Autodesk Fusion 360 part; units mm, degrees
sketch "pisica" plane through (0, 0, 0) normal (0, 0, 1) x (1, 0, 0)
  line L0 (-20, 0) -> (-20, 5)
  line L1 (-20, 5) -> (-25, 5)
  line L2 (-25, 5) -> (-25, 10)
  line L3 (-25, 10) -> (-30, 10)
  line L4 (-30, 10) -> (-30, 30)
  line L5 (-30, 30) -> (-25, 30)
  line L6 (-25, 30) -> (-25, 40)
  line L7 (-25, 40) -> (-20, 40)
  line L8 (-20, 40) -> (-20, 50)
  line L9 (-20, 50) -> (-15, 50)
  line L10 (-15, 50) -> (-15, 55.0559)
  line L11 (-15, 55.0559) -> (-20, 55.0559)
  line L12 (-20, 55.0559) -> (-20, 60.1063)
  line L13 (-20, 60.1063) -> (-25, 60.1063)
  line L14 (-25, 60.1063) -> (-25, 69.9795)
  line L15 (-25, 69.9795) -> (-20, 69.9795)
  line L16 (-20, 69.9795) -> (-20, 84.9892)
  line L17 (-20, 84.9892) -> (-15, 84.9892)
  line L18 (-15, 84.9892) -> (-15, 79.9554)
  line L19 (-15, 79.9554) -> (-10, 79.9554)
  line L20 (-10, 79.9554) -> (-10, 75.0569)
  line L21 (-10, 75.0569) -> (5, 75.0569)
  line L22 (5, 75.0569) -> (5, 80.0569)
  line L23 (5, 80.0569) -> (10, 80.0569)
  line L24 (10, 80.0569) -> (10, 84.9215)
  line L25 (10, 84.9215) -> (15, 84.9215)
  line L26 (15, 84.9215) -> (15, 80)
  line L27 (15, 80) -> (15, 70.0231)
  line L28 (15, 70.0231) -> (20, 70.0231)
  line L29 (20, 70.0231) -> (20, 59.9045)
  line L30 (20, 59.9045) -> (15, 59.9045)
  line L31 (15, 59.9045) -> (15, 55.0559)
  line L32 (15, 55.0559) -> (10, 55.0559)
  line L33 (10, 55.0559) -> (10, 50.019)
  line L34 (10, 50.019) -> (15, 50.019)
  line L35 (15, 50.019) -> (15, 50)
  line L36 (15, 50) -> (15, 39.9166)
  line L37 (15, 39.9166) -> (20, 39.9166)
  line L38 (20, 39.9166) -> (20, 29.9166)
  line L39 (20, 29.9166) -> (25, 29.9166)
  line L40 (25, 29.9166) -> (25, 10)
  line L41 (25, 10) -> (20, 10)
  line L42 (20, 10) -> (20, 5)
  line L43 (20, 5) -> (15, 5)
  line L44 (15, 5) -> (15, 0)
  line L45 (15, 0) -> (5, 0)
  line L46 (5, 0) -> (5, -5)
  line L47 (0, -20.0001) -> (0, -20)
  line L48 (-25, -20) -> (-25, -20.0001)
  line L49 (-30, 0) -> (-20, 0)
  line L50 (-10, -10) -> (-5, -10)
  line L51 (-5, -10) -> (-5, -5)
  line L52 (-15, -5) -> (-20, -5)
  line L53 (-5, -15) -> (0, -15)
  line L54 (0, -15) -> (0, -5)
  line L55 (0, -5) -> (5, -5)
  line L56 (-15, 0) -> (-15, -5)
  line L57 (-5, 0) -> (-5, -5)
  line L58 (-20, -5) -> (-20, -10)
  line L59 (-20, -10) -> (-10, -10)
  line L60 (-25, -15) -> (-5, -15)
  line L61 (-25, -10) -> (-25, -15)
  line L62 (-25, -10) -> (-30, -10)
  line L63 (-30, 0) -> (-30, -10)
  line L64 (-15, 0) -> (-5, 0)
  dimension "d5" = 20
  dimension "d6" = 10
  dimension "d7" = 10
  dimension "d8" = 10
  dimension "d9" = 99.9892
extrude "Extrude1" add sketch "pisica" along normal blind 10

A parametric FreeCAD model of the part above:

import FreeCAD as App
import Part
import Sketcher
from FreeCAD import Vector
Q = App.Units.Quantity

doc = App.newDocument("Part")
body = doc.addObject("PartDesign::Body", "Body")

# Sketch on XY plane
sketch1 = body.newObject("Sketcher::SketchObject", "Sketch")
sketch1.AttachmentSupport = (doc.getObject("XY_Plane"), [""])
sketch1.MapMode = "FlatFace"
sketch1.addGeometry(Part.LineSegment(Vector(-20, 5, 0), Vector(-20, 0, 0)), False)
sketch1.addGeometry(Part.LineSegment(Vector(-20, 0, 0), Vector(-30, 0, 0)), False)
sketch1.addGeometry(Part.LineSegment(Vector(-30, 0, 0), Vector(-30, -10, 0)), False)
sketch1.addGeometry(Part.LineSegment(Vector(-30, -10, 0), Vector(-25, -10, 0)), False)
sketch1.addGeometry(Part.LineSegment(Vector(-25, -10, 0), Vector(-25, -15, 0)), False)
sketch1.addGeometry(Part.LineSegment(Vector(-25, -15, 0), Vector(0, -15, 0)), False)
sketch1.addGeometry(Part.LineSegment(Vector(0, -15, 0), Vector(0, -5, 0)), False)
sketch1.addGeometry(Part.LineSegment(Vector(0, -5, 0), Vector(5, -5, 0)), False)
sketch1.addGeometry(Part.LineSegment(Vector(5, -5, 0), Vector(5, 0, 0)), False)
sketch1.addGeometry(Part.LineSegment(Vector(5, 0, 0), Vector(15, 0, 0)), False)
sketch1.addGeometry(Part.LineSegment(Vector(15, 0, 0), Vector(15, 5, 0)), False)
sketch1.addGeometry(Part.LineSegment(Vector(15, 5, 0), Vector(20, 5, 0)), False)
sketch1.addGeometry(Part.LineSegment(Vector(20, 5, 0), Vector(20, 10, 0)), False)
sketch1.addGeometry(Part.LineSegment(Vector(20, 10, 0), Vector(25, 10, 0)), False)
sketch1.addGeometry(Part.LineSegment(Vector(25, 10, 0), Vector(25, 29.9, 0)), False)
sketch1.addGeometry(Part.LineSegment(Vector(25, 29.9, 0), Vector(20, 29.9, 0)), False)
sketch1.addGeometry(Part.LineSegment(Vector(20, 29.9, 0), Vector(20, 39.9, 0)), False)
sketch1.addGeometry(Part.LineSegment(Vector(20, 39.9, 0), Vector(15, 39.9, 0)), False)
sketch1.addGeometry(Part.LineSegment(Vector(15, 39.9, 0), Vector(15, 50, 0)), False)
sketch1.addGeometry(Part.LineSegment(Vector(15, 50, 0), Vector(10, 50, 0)), False)
sketch1.addGeometry(Part.LineSegment(Vector(10, 50, 0), Vector(10, 55.1, 0)), False)
sketch1.addGeometry(Part.LineSegment(Vector(10, 55.1, 0), Vector(15, 55.1, 0)), False)
sketch1.addGeometry(Part.LineSegment(Vector(15, 55.1, 0), Vector(15, 59.9, 0)), False)
sketch1.addGeometry(Part.LineSegment(Vector(15, 59.9, 0), Vector(20, 59.9, 0)), False)
sketch1.addGeometry(Part.LineSegment(Vector(20, 59.9, 0), Vector(20, 70, 0)), False)
sketch1.addGeometry(Part.LineSegment(Vector(20, 70, 0), Vector(15, 70, 0)), False)
sketch1.addGeometry(Part.LineSegment(Vector(15, 70, 0), Vector(15, 84.9, 0)), False)
sketch1.addGeometry(Part.LineSegment(Vector(15, 84.9, 0), Vector(10, 84.9, 0)), False)
sketch1.addGeometry(Part.LineSegment(Vector(10, 84.9, 0), Vector(10, 80.1, 0)), False)
sketch1.addGeometry(Part.LineSegment(Vector(10, 80.1, 0), Vector(5, 80.1, 0)), False)
sketch1.addGeometry(Part.LineSegment(Vector(5, 80.1, 0), Vector(5, 75.1, 0)), False)
sketch1.addGeometry(Part.LineSegment(Vector(5, 75.1, 0), Vector(-10, 75.1, 0)), False)
sketch1.addGeometry(Part.LineSegment(Vector(-10, 75.1, 0), Vector(-10, 80, 0)), False)
sketch1.addGeometry(Part.LineSegment(Vector(-10, 80, 0), Vector(-15, 80, 0)), False)
sketch1.addGeometry(Part.LineSegment(Vector(-15, 80, 0), Vector(-15, 85, 0)), False)
sketch1.addGeometry(Part.LineSegment(Vector(-15, 85, 0), Vector(-20, 85, 0)), False)
sketch1.addGeometry(Part.LineSegment(Vector(-20, 85, 0), Vector(-20, 70, 0)), False)
sketch1.addGeometry(Part.LineSegment(Vector(-20, 70, 0), Vector(-25, 70, 0)), False)
sketch1.addGeometry(Part.LineSegment(Vector(-25, 70, 0), Vector(-25, 60.1, 0)), False)
sketch1.addGeometry(Part.LineSegment(Vector(-25, 60.1, 0), Vector(-20, 60.1, 0)), False)
sketch1.addGeometry(Part.LineSegment(Vector(-20, 60.1, 0), Vector(-20, 55.1, 0)), False)
sketch1.addGeometry(Part.LineSegment(Vector(-20, 55.1, 0), Vector(-15, 55.1, 0)), False)
sketch1.addGeometry(Part.LineSegment(Vector(-15, 55.1, 0), Vector(-15, 50, 0)), False)
sketch1.addGeometry(Part.LineSegment(Vector(-15, 50, 0), Vector(-20, 50, 0)), False)
sketch1.addGeometry(Part.LineSegment(Vector(-20, 50, 0), Vector(-20, 40, 0)), False)
sketch1.addGeometry(Part.LineSegment(Vector(-20, 40, 0), Vector(-25, 40, 0)), False)
sketch1.addGeometry(Part.LineSegment(Vector(-25, 40, 0), Vector(-25, 30, 0)), False)
sketch1.addGeometry(Part.LineSegment(Vector(-25, 30, 0), Vector(-30, 30, 0)), False)
sketch1.addGeometry(Part.LineSegment(Vector(-30, 30, 0), Vector(-30, 10, 0)), False)
sketch1.addGeometry(Part.LineSegment(Vector(-30, 10, 0), Vector(-25, 10, 0)), False)
sketch1.addGeometry(Part.LineSegment(Vector(-25, 10, 0), Vector(-25, 5, 0)), False)
sketch1.addGeometry(Part.LineSegment(Vector(-25, 5, 0), Vector(-20, 5, 0)), False)
sketch1.addGeometry(Part.LineSegment(Vector(-5, -10, 0), Vector(-20, -10, 0)), False)
sketch1.addGeometry(Part.LineSegment(Vector(-20, -10, 0), Vector(-20, -5, 0)), False)
sketch1.addGeometry(Part.LineSegment(Vector(-20, -5, 0), Vector(-15, -5, 0)), False)
sketch1.addGeometry(Part.LineSegment(Vector(-15, -5, 0), Vector(-15, 0, 0)), False)
sketch1.addGeometry(Part.LineSegment(Vector(-15, 0, 0), Vector(-5, 0, 0)), False)
sketch1.addGeometry(Part.LineSegment(Vector(-5, 0, 0), Vector(-5, -10, 0)), False)
sketch1.addConstraint(Sketcher.Constraint("Coincident", 0, 2, 1, 1))
sketch1.addConstraint(Sketcher.Constraint("Coincident", 1, 2, 2, 1))
sketch1.addConstraint(Sketcher.Constraint("Coincident", 2, 2, 3, 1))
sketch1.addConstraint(Sketcher.Constraint("Coincident", 3, 2, 4, 1))
sketch1.addConstraint(Sketcher.Constraint("Coincident", 4, 2, 5, 1))
sketch1.addConstraint(Sketcher.Constraint("Coincident", 5, 2, 6, 1))
sketch1.addConstraint(Sketcher.Constraint("Coincident", 6, 2, 7, 1))
sketch1.addConstraint(Sketcher.Constraint("Coincident", 7, 2, 8, 1))
sketch1.addConstraint(Sketcher.Constraint("Coincident", 8, 2, 9, 1))
sketch1.addConstraint(Sketcher.Constraint("Coincident", 9, 2, 10, 1))
sketch1.addConstraint(Sketcher.Constraint("Coincident", 10, 2, 11, 1))
sketch1.addConstraint(Sketcher.Constraint("Coincident", 11, 2, 12, 1))
sketch1.addConstraint(Sketcher.Constraint("Coincident", 12, 2, 13, 1))
sketch1.addConstraint(Sketcher.Constraint("Coincident", 13, 2, 14, 1))
sketch1.addConstraint(Sketcher.Constraint("Coincident", 14, 2, 15, 1))
sketch1.addConstraint(Sketcher.Constraint("Coincident", 15, 2, 16, 1))
sketch1.addConstraint(Sketcher.Constraint("Coincident", 16, 2, 17, 1))
sketch1.addConstraint(Sketcher.Constraint("Coincident", 17, 2, 18, 1))
sketch1.addConstraint(Sketcher.Constraint("Coincident", 18, 2, 19, 1))
sketch1.addConstraint(Sketcher.Constraint("Coincident", 19, 2, 20, 1))
sketch1.addConstraint(Sketcher.Constraint("Coincident", 20, 2, 21, 1))
sketch1.addConstraint(Sketcher.Constraint("Coincident", 21, 2, 22, 1))
sketch1.addConstraint(Sketcher.Constraint("Coincident", 22, 2, 23, 1))
sketch1.addConstraint(Sketcher.Constraint("Coincident", 23, 2, 24, 1))
sketch1.addConstraint(Sketcher.Constraint("Coincident", 24, 2, 25, 1))
sketch1.addConstraint(Sketcher.Constraint("Coincident", 25, 2, 26, 1))
sketch1.addConstraint(Sketcher.Constraint("Coincident", 26, 2, 27, 1))
sketch1.addConstraint(Sketcher.Constraint("Coincident", 27, 2, 28, 1))
sketch1.addConstraint(Sketcher.Constraint("Coincident", 28, 2, 29, 1))
sketch1.addConstraint(Sketcher.Constraint("Coincident", 29, 2, 30, 1))
sketch1.addConstraint(Sketcher.Constraint("Coincident", 30, 2, 31, 1))
sketch1.addConstraint(Sketcher.Constraint("Coincident", 31, 2, 32, 1))
sketch1.addConstraint(Sketcher.Constraint("Coincident", 32, 2, 33, 1))
sketch1.addConstraint(Sketcher.Constraint("Coincident", 33, 2, 34, 1))
sketch1.addConstraint(Sketcher.Constraint("Coincident", 34, 2, 35, 1))
sketch1.addConstraint(Sketcher.Constraint("Coincident", 35, 2, 36, 1))
sketch1.addConstraint(Sketcher.Constraint("Coincident", 36, 2, 37, 1))
sketch1.addConstraint(Sketcher.Constraint("Coincident", 37, 2, 38, 1))
sketch1.addConstraint(Sketcher.Constraint("Coincident", 38, 2, 39, 1))
sketch1.addConstraint(Sketcher.Constraint("Coincident", 39, 2, 40, 1))
sketch1.addConstraint(Sketcher.Constraint("Coincident", 40, 2, 41, 1))
sketch1.addConstraint(Sketcher.Constraint("Coincident", 41, 2, 42, 1))
sketch1.addConstraint(Sketcher.Constraint("Coincident", 42, 2, 43, 1))
sketch1.addConstraint(Sketcher.Constraint("Coincident", 43, 2, 44, 1))
sketch1.addConstraint(Sketcher.Constraint("Coincident", 44, 2, 45, 1))
sketch1.addConstraint(Sketcher.Constraint("Coincident", 45, 2, 46, 1))
sketch1.addConstraint(Sketcher.Constraint("Coincident", 46, 2, 47, 1))
sketch1.addConstraint(Sketcher.Constraint("Coincident", 47, 2, 48, 1))
sketch1.addConstraint(Sketcher.Constraint("Coincident", 48, 2, 49, 1))
sketch1.addConstraint(Sketcher.Constraint("Coincident", 49, 2, 50, 1))
sketch1.addConstraint(Sketcher.Constraint("Coincident", 50, 2, 51, 1))
sketch1.addConstraint(Sketcher.Constraint("Coincident", 51, 2, 0, 1))
sketch1.addConstraint(Sketcher.Constraint("Coincident", 52, 2, 53, 1))
sketch1.addConstraint(Sketcher.Constraint("Coincident", 53, 2, 54, 1))
sketch1.addConstraint(Sketcher.Constraint("Coincident", 54, 2, 55, 1))
sketch1.addConstraint(Sketcher.Constraint("Coincident", 55, 2, 56, 1))
sketch1.addConstraint(Sketcher.Constraint("Coincident", 56, 2, 57, 1))
sketch1.addConstraint(Sketcher.Constraint("Coincident", 57, 2, 52, 1))
sketch1.addConstraint(Sketcher.Constraint("Vertical", 0))
sketch1.addConstraint(Sketcher.Constraint("Horizontal", 1))
sketch1.addConstraint(Sketcher.Constraint("Vertical", 2))
sketch1.addConstraint(Sketcher.Constraint("Horizontal", 3))
sketch1.addConstraint(Sketcher.Constraint("Vertical", 4))
sketch1.addConstraint(Sketcher.Constraint("Horizontal", 5))
sketch1.addConstraint(Sketcher.Constraint("Vertical", 6))
sketch1.addConstraint(Sketcher.Constraint("Horizontal", 7))
sketch1.addConstraint(Sketcher.Constraint("Vertical", 8))
sketch1.addConstraint(Sketcher.Constraint("Horizontal", 9))
sketch1.addConstraint(Sketcher.Constraint("Vertical", 10))
sketch1.addConstraint(Sketcher.Constraint("Horizontal", 11))
sketch1.addConstraint(Sketcher.Constraint("Vertical", 12))
sketch1.addConstraint(Sketcher.Constraint("Horizontal", 13))
sketch1.addConstraint(Sketcher.Constraint("Vertical", 14))
sketch1.addConstraint(Sketcher.Constraint("Horizontal", 15))
sketch1.addConstraint(Sketcher.Constraint("Vertical", 16))
sketch1.addConstraint(Sketcher.Constraint("Horizontal", 17))
sketch1.addConstraint(Sketcher.Constraint("Vertical", 18))
sketch1.addConstraint(Sketcher.Constraint("Horizontal", 19))
sketch1.addConstraint(Sketcher.Constraint("Vertical", 20))
sketch1.addConstraint(Sketcher.Constraint("Horizontal", 21))
sketch1.addConstraint(Sketcher.Constraint("Vertical", 22))
sketch1.addConstraint(Sketcher.Constraint("Horizontal", 23))
sketch1.addConstraint(Sketcher.Constraint("Vertical", 24))
sketch1.addConstraint(Sketcher.Constraint("Horizontal", 25))
sketch1.addConstraint(Sketcher.Constraint("Vertical", 26))
sketch1.addConstraint(Sketcher.Constraint("Horizontal", 27))
sketch1.addConstraint(Sketcher.Constraint("Vertical", 28))
sketch1.addConstraint(Sketcher.Constraint("Horizontal", 29))
sketch1.addConstraint(Sketcher.Constraint("Vertical", 30))
sketch1.addConstraint(Sketcher.Constraint("Horizontal", 31))
sketch1.addConstraint(Sketcher.Constraint("Vertical", 32))
sketch1.addConstraint(Sketcher.Constraint("Horizontal", 33))
sketch1.addConstraint(Sketcher.Constraint("Vertical", 34))
sketch1.addConstraint(Sketcher.Constraint("Horizontal", 35))
sketch1.addConstraint(Sketcher.Constraint("Vertical", 36))
sketch1.addConstraint(Sketcher.Constraint("Horizontal", 37))
sketch1.addConstraint(Sketcher.Constraint("Vertical", 38))
sketch1.addConstraint(Sketcher.Constraint("Horizontal", 39))
sketch1.addConstraint(Sketcher.Constraint("Vertical", 40))
sketch1.addConstraint(Sketcher.Constraint("Horizontal", 41))
sketch1.addConstraint(Sketcher.Constraint("Vertical", 42))
sketch1.addConstraint(Sketcher.Constraint("Horizontal", 43))
sketch1.addConstraint(Sketcher.Constraint("Vertical", 44))
sketch1.addConstraint(Sketcher.Constraint("Horizontal", 45))
sketch1.addConstraint(Sketcher.Constraint("Vertical", 46))
sketch1.addConstraint(Sketcher.Constraint("Horizontal", 47))
sketch1.addConstraint(Sketcher.Constraint("Vertical", 48))
sketch1.addConstraint(Sketcher.Constraint("Horizontal", 49))
sketch1.addConstraint(Sketcher.Constraint("Vertical", 50))
sketch1.addConstraint(Sketcher.Constraint("Horizontal", 51))
sketch1.addConstraint(Sketcher.Constraint("Horizontal", 52))
sketch1.addConstraint(Sketcher.Constraint("Vertical", 53))
sketch1.addConstraint(Sketcher.Constraint("Horizontal", 54))
sketch1.addConstraint(Sketcher.Constraint("Vertical", 55))
sketch1.addConstraint(Sketcher.Constraint("Horizontal", 56))
sketch1.addConstraint(Sketcher.Constraint("Vertical", 57))
sketch1.addConstraint(Sketcher.Constraint("Symmetric", 3, 2, 13, 2, -1, 1))
sketch1.addConstraint(Sketcher.Constraint("Symmetric", 12, 2, 52, 2, -1, 1))
sketch1.addConstraint(Sketcher.Constraint("Symmetric", 10, 2, 54, 2, -1, 1))
sketch1.addConstraint(Sketcher.Constraint("Symmetric", 8, 2, 56, 2, -1, 1))
sketch1.addConstraint(Sketcher.Constraint("Symmetric", 21, 2, 41, 2, -2))
sketch1.addConstraint(Sketcher.Constraint("Symmetric", 13, 2, 49, 2, -2))
sketch1.addConstraint(Sketcher.Constraint("Symmetric", 11, 2, 51, 2, -2))
sketch1.addConstraint(Sketcher.Constraint("PointOnObject", 0, 2, -1))
sketch1.addConstraint(Sketcher.Constraint("PointOnObject", 5, 2, -2))
sketch1.addConstraint(Sketcher.Constraint("PointOnObject", 8, 2, -1))
sketch1.addConstraint(Sketcher.Constraint("Horizontal", 7, 2, 53, 2))
sketch1.addConstraint(Sketcher.Constraint("Vertical", 12, 2, 15, 2))
sketch1.addConstraint(Sketcher.Constraint("Vertical", 10, 2, 17, 2))
sketch1.addConstraint(Sketcher.Constraint("Vertical", 18, 2, 21, 2))
sketch1.addConstraint(Sketcher.Constraint("Vertical", 16, 2, 23, 2))
sketch1.addConstraint(Sketcher.Constraint("Vertical", 22, 2, 25, 2))
sketch1.addConstraint(Sketcher.Constraint("Vertical", 20, 2, 27, 2))
sketch1.addConstraint(Sketcher.Constraint("Vertical", 8, 2, 29, 2))
sketch1.addConstraint(Sketcher.Constraint("Vertical", 0, 2, 35, 2))
sketch1.addConstraint(Sketcher.Constraint("Vertical", 4, 2, 37, 2))
sketch1.addConstraint(Sketcher.Constraint("Vertical", 36, 2, 39, 2))
sketch1.addConstraint(Sketcher.Constraint("Vertical", 34, 2, 41, 2))
sketch1.addConstraint(Sketcher.Constraint("Vertical", 40, 2, 43, 2))
sketch1.addConstraint(Sketcher.Constraint("Vertical", 38, 2, 45, 2))
sketch1.addConstraint(Sketcher.Constraint("Vertical", 2, 2, 47, 2))
sketch1.addConstraint(Sketcher.Constraint("Equal", 3, 7))
sketch1.addConstraint(Sketcher.Constraint("Equal", 1, 9))
sketch1.addConstraint(Sketcher.Constraint("Equal", 7, 11))
sketch1.addConstraint(Sketcher.Constraint("Equal", 11, 13))
sketch1.addConstraint(Sketcher.Constraint("Equal", 17, 19))
sketch1.addConstraint(Sketcher.Constraint("Equal", 29, 33))
sketch1.addConstraint(Sketcher.Constraint("Equal", 54, 0))
sketch1.addConstraint(Sketcher.Constraint("Equal", 56, 2))
sketch1.addConstraint(Sketcher.Constraint("Equal", 0, 4))
sketch1.addConstraint(Sketcher.Constraint("Equal", 6, 16))
sketch1.addConstraint(Sketcher.Constraint("Equal", 12, 30))
sketch1.addConstraint(Sketcher.Constraint("Equal", 16, 44))
sketch1.addConstraint(Sketcher.Constraint("Equal", 44, 46))
sketch1.addConstraint(Sketcher.Constraint("DistanceX", 1, 2, 1, 1, Q("10 mm")))
sketch1.addConstraint(Sketcher.Constraint("DistanceY", 48, 2, 48, 1, Q("20 mm")))
sketch1.addConstraint(Sketcher.Constraint("DistanceY", 20, 1, 20, 2, Q("5.037 mm")))
sketch1.addConstraint(Sketcher.Constraint("DistanceY", 42, 2, 42, 1, Q("5.056 mm")))
sketch1.addConstraint(Sketcher.Constraint("DistanceY", 14, 1, 14, 2, Q("19.9166 mm")))
sketch1.addConstraint(Sketcher.Constraint("DistanceY", 22, 1, 22, 2, Q("4.8486 mm")))
sketch1.addConstraint(Sketcher.Constraint("DistanceY", 24, 1, 24, 2, Q("10.1186 mm")))
sketch1.addConstraint(Sketcher.Constraint("DistanceY", 26, 1, 26, 2, Q("14.8984 mm")))
sketch1.addConstraint(Sketcher.Constraint("DistanceY", 28, 2, 28, 1, Q("4.8646 mm")))
sketch1.addConstraint(Sketcher.Constraint("DistanceY", 32, 1, 32, 2, Q("4.8985 mm")))
sketch1.addConstraint(Sketcher.Constraint("DistanceY", 34, 1, 34, 2, Q("5.0338 mm")))
sketch1.addConstraint(Sketcher.Constraint("DistanceY", 36, 2, 36, 1, Q("15.0097 mm")))
sketch1.addConstraint(Sketcher.Constraint("DistanceY", 38, 2, 38, 1, Q("9.8732 mm")))
pad1 = body.newObject("PartDesign::Pad", "Pad")
pad1.Profile = sketch1
pad1.Length = 10

doc.recompute()
